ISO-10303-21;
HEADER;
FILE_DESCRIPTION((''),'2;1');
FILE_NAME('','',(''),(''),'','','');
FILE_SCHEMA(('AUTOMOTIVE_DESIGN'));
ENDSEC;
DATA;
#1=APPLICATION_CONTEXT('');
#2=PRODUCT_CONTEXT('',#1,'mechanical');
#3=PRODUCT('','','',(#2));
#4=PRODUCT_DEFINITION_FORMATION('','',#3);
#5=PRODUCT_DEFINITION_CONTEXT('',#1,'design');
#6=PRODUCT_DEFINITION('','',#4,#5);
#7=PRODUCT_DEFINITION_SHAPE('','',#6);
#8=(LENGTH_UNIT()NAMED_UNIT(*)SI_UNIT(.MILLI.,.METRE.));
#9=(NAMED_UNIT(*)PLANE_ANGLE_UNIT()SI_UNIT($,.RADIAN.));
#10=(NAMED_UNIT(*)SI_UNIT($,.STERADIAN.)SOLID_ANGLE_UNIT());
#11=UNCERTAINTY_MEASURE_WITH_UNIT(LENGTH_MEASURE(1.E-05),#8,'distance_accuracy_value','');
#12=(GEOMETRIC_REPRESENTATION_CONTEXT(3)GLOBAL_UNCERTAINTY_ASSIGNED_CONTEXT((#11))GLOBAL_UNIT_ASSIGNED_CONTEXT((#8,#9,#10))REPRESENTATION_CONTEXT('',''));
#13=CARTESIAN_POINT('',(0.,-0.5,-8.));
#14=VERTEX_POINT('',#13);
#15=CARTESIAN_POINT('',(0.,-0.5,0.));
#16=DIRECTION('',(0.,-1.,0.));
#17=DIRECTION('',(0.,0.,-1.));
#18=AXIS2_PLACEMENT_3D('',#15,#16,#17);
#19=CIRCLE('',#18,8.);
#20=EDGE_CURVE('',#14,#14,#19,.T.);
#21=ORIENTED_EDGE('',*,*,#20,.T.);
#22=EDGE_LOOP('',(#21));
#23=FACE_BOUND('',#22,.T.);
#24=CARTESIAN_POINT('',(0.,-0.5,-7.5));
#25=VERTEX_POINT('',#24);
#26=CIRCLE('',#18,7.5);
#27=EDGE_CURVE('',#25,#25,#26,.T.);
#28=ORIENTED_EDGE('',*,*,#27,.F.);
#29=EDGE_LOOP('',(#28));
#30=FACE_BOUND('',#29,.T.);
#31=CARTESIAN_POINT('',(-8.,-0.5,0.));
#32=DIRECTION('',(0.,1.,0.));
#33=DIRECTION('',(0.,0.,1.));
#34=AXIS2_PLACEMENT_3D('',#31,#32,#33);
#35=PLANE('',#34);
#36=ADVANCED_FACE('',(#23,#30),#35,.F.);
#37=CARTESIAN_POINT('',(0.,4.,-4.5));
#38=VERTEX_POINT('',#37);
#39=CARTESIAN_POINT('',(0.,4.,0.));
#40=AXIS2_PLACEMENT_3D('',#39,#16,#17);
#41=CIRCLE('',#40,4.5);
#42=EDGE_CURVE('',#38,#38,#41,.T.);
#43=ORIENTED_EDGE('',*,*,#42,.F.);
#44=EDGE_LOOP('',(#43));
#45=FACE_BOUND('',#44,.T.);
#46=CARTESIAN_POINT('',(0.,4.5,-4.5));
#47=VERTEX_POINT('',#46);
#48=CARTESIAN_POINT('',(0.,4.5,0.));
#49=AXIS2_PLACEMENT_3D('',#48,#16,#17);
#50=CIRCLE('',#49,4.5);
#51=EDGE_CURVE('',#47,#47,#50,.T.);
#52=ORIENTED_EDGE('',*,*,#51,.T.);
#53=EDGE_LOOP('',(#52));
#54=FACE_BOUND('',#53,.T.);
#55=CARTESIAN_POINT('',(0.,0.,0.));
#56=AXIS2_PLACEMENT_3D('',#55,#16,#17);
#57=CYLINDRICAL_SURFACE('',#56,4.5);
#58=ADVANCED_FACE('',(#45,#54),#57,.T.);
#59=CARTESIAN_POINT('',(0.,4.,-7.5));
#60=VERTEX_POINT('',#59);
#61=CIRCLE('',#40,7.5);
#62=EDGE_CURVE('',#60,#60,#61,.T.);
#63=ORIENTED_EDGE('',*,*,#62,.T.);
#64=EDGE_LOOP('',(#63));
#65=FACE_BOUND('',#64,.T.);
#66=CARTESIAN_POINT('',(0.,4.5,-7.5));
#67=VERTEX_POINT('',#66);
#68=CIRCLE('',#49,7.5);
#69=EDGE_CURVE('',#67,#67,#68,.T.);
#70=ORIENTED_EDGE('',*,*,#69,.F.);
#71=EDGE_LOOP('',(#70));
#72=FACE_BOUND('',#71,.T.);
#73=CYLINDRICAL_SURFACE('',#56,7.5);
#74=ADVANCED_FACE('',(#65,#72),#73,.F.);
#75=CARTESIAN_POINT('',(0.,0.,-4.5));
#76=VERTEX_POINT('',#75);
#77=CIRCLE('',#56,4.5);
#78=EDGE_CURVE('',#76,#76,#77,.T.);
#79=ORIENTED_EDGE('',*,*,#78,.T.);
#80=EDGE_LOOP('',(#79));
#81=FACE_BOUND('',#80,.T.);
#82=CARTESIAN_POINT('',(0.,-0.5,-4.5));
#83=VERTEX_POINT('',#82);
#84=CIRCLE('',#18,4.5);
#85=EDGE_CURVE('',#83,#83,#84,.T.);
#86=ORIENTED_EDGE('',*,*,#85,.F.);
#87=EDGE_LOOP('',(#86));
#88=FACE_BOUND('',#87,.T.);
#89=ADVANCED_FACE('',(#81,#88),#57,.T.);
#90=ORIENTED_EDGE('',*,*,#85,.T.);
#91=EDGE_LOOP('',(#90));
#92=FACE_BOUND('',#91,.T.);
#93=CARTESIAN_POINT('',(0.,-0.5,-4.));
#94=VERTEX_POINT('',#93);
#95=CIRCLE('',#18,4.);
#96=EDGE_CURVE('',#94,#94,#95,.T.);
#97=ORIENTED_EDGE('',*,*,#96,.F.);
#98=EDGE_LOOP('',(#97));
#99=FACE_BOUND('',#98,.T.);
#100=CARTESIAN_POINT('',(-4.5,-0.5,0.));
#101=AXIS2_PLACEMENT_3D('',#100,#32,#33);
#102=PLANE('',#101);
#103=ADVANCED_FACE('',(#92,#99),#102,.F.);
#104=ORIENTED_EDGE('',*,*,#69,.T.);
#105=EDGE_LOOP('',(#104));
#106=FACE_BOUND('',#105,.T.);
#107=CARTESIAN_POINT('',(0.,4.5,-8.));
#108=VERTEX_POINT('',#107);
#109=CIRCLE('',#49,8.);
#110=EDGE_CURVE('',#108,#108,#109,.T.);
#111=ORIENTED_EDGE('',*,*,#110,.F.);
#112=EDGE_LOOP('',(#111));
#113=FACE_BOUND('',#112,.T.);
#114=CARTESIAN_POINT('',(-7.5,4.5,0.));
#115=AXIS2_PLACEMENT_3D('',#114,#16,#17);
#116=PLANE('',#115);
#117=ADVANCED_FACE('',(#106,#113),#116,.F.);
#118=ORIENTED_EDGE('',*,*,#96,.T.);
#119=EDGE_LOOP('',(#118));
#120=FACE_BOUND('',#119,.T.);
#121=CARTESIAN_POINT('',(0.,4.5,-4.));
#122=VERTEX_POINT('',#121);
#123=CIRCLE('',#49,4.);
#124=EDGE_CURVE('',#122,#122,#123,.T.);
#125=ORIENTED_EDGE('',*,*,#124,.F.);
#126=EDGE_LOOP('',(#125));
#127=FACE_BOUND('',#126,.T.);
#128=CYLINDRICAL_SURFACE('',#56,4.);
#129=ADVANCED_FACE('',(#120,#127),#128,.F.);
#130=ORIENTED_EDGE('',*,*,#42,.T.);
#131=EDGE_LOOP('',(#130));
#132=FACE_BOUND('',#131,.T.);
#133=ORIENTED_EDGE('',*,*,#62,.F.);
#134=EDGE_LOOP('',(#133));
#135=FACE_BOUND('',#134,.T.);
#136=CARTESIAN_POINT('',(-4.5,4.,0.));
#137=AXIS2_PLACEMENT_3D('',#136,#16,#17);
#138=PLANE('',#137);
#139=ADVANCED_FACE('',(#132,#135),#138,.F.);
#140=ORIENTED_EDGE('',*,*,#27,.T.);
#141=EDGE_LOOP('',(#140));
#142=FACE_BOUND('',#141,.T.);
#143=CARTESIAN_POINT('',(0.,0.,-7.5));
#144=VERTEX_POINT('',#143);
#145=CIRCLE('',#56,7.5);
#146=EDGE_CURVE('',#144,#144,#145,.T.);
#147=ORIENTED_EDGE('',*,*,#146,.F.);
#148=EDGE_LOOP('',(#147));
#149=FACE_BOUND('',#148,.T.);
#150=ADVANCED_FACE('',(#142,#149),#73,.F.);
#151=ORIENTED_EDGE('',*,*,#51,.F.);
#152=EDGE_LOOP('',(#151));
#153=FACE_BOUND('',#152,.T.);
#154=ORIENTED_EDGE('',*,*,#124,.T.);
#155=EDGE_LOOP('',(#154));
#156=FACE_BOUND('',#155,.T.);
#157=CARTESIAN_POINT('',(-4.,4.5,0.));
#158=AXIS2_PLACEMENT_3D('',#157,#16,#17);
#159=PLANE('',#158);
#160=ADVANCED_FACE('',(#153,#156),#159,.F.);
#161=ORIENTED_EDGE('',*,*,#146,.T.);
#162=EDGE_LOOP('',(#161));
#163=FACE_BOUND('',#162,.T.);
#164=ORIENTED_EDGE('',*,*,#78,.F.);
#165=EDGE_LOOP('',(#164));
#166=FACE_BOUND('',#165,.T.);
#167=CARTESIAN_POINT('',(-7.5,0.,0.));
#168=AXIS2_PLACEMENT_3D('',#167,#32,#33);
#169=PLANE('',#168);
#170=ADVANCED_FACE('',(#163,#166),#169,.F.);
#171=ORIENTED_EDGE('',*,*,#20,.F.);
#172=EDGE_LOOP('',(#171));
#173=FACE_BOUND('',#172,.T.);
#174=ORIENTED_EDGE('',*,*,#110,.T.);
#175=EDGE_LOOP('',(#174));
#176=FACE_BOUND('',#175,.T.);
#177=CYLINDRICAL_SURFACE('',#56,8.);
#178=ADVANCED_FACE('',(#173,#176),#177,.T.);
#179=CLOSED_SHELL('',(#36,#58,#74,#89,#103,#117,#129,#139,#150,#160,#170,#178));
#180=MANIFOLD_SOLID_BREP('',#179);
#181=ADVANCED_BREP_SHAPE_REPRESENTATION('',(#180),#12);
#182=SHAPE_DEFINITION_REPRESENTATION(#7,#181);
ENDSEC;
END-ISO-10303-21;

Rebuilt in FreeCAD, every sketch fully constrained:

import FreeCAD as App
import Part
import Sketcher

V = App.Vector
Q = App.Units.Quantity


def add_polygon(sketch, points):
    """Adds a closed chain of lines whose ends are joined by coincident constraints."""
    first, n = sketch.GeometryCount, len(points)
    for a, b in zip(points, points[1:] + points[:1]):
        sketch.addGeometry(Part.LineSegment(App.Vector(*a, 0), App.Vector(*b, 0)), False)
    for i in range(n):
        sketch.addConstraint(Sketcher.Constraint("Coincident", first + i, 2, first + (i + 1) % n, 1))

doc = App.newDocument("Part")
params = doc.addObject("Spreadsheet::Sheet", "Params")
for row, (alias, value) in enumerate([
    ("sketch1_width", "3 mm"),
    ("sketch1_height", "5 mm"),
    ("sketch1_width2", "0.5 mm"),
    ("revolution_angle", "360 deg"),
], start=1):
    params.set(f"A{row}", alias)
    params.set(f"B{row}", "=" + value)
    params.setAlias(f"B{row}", alias)

body = doc.addObject("PartDesign::Body", "Body")

# Sketch on XY plane
sketch1 = body.newObject("Sketcher::SketchObject", "Sketch")
sketch1.AttachmentSupport = (doc.getObject("XY_Plane"), [""])
sketch1.MapMode = "FlatFace"
add_polygon(sketch1, [(-4, 4.5), (-4.5, 4.5), (-4.5, 4), (-7.5, 4), (-7.5, 4.5), (-8, 4.5), (-8, -0.5), (-7.5, -0.5), (-7.5, 0), (-4.5, 0), (-4.5, -0.5), (-4, -0.5)])  # lines 0-11
sketch1.addConstraint([
    Sketcher.Constraint("Horizontal", 0),
    Sketcher.Constraint("Vertical", 1),
    Sketcher.Constraint("Horizontal", 2),
    Sketcher.Constraint("Vertical", 3),
    Sketcher.Constraint("Horizontal", 4),
    Sketcher.Constraint("Vertical", 5),
    Sketcher.Constraint("Horizontal", 6),
    Sketcher.Constraint("Vertical", 7),
    Sketcher.Constraint("Horizontal", 8),
    Sketcher.Constraint("Vertical", 9),
    Sketcher.Constraint("Horizontal", 10),
    Sketcher.Constraint("Vertical", 11),
    Sketcher.Constraint("PointOnObject", 7, 2, -1),
    Sketcher.Constraint("Horizontal", 0, 2, 3, 2),
    Sketcher.Constraint("Horizontal", 6, 2, 9, 2),
    Sketcher.Constraint("Vertical", 3, 2, 6, 2),
    Sketcher.Constraint("Vertical", 1, 2, 8, 2),
    Sketcher.Constraint("Equal", 0, 4),
    Sketcher.Constraint("Equal", 10, 1),
    Sketcher.Constraint("Equal", 3, 7),
    Sketcher.Constraint("DistanceX", 2, 2, 2, 1, Q("3 mm")),
    Sketcher.Constraint("DistanceY", 5, 2, 5, 1, Q("5 mm")),
    Sketcher.Constraint("DistanceX", 0, 2, 0, 1, Q("0.5 mm")),
    Sketcher.Constraint("DistanceX", 4, 2, -1, 1, Q("8 mm")),
])
sketch1.setExpression("Constraints[32]", "Params.sketch1_width")
sketch1.setExpression("Constraints[33]", "Params.sketch1_height")
sketch1.setExpression("Constraints[34]", "Params.sketch1_width2")
revolution = body.newObject("PartDesign::Revolution", "Revolution")
revolution.Profile = sketch1
revolution.ReferenceAxis = (sketch1, ["V_Axis"])
revolution.setExpression("Angle", "Params.revolution_angle")

doc.recompute()
